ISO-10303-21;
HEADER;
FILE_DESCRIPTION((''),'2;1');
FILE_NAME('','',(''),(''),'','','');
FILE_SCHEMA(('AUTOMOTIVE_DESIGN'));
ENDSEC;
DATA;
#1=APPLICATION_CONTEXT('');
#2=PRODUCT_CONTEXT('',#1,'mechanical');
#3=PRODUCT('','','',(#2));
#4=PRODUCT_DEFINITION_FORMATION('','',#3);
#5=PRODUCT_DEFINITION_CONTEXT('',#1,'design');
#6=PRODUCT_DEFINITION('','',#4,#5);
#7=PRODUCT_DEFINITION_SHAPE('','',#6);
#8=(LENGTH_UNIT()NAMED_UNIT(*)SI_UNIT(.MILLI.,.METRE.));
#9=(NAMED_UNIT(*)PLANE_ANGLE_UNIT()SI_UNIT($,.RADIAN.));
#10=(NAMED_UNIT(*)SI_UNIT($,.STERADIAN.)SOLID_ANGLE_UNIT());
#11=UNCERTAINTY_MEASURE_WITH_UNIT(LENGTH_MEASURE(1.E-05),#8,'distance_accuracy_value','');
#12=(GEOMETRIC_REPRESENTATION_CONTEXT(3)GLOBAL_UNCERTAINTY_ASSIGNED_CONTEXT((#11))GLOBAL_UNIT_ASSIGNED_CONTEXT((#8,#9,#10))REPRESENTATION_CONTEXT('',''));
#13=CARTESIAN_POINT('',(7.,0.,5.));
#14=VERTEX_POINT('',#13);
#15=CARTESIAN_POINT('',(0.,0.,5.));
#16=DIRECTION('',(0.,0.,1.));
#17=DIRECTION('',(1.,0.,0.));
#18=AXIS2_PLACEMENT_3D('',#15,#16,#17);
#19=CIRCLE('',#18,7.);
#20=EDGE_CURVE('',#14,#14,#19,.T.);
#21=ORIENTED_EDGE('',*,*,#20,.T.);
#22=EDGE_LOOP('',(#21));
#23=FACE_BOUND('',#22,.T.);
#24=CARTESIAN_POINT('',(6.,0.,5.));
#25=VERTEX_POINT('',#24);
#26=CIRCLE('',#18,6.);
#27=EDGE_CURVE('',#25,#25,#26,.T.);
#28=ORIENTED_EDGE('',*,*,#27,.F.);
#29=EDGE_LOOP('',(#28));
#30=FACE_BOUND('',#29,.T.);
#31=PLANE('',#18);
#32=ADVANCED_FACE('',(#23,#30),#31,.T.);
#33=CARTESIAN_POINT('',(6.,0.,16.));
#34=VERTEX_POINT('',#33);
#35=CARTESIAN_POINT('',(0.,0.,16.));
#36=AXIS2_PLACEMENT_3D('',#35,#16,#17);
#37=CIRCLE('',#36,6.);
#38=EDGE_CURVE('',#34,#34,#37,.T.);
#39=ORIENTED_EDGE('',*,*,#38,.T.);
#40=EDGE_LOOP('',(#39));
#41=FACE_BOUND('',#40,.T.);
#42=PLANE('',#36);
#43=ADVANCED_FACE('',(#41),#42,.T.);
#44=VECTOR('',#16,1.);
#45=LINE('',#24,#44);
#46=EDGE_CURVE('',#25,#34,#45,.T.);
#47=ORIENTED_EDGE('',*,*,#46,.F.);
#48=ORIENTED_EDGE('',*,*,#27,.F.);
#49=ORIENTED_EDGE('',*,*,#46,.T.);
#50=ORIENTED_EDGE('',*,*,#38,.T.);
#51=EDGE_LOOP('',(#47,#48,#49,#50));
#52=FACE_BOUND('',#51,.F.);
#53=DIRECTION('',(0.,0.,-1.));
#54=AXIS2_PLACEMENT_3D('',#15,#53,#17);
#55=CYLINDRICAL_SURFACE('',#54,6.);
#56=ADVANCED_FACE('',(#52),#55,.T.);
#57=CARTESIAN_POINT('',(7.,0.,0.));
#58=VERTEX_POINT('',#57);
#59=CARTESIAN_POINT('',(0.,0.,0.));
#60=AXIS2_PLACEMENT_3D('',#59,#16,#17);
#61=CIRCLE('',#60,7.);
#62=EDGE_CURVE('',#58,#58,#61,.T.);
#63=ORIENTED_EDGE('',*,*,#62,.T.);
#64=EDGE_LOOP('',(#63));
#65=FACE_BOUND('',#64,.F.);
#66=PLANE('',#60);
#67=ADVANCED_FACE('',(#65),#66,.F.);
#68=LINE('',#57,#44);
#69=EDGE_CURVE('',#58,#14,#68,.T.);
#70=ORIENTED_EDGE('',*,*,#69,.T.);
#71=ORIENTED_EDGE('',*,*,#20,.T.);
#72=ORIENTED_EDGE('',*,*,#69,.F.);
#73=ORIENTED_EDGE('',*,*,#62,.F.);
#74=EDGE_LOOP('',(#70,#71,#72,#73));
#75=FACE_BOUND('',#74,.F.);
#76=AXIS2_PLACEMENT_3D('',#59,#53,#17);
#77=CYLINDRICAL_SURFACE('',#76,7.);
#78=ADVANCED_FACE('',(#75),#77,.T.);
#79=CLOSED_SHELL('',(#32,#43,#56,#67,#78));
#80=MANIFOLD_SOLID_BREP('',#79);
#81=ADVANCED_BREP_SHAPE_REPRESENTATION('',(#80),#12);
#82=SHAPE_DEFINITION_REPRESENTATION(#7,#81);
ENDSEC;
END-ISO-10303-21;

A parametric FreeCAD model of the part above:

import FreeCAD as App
import Part
import Sketcher
Q = App.Units.Quantity

doc = App.newDocument("Part")
params = doc.addObject("Spreadsheet::Sheet", "Params")
for row, (alias, value) in enumerate([
    ("sketch1_diameter", "14 mm"),
    ("pad1_length", "5 mm"),
    ("sketch2_diameter", "12 mm"),
    ("pad2_length", "11 mm"),
], start=1):
    params.set(f"A{row}", alias)
    params.set(f"B{row}", "=" + value)
    params.setAlias(f"B{row}", alias)

body = doc.addObject("PartDesign::Body", "Body")

# Sketch on XY plane
sketch1 = body.newObject("Sketcher::SketchObject", "Sketch")
sketch1.AttachmentSupport = (doc.getObject("XY_Plane"), [""])
sketch1.MapMode = "FlatFace"
sketch1.addGeometry(Part.Circle(App.Vector(0, 0, 0), App.Vector(0, 0, 1), 7), False)
sketch1.addConstraint([
    Sketcher.Constraint("Coincident", 0, 3, -1, 1),
    Sketcher.Constraint("Diameter", 0, Q("14 mm")),
])
sketch1.setExpression("Constraints[1]", "Params.sketch1_diameter")
pad1 = body.newObject("PartDesign::Pad", "Pad")
pad1.Profile = sketch1
pad1.setExpression("Length", "Params.pad1_length")

# Sketch on XY plane
sketch2 = body.newObject("Sketcher::SketchObject", "Sketch001")
sketch2.AttachmentSupport = (doc.getObject("XY_Plane"), [""])
sketch2.MapMode = "FlatFace"
sketch2.AttachmentOffset = App.Placement(App.Vector(0, 0, 5), App.Rotation())
sketch2.addGeometry(Part.Circle(App.Vector(0, 0, 0), App.Vector(0, 0, 1), 6), False)
sketch2.addConstraint([
    Sketcher.Constraint("Coincident", 0, 3, -1, 1),
    Sketcher.Constraint("Diameter", 0, Q("12 mm")),
])
sketch2.setExpression("Constraints[1]", "Params.sketch2_diameter")
pad2 = body.newObject("PartDesign::Pad", "Pad001")
pad2.Profile = sketch2
pad2.setExpression("Length", "Params.pad2_length")

doc.recompute()
